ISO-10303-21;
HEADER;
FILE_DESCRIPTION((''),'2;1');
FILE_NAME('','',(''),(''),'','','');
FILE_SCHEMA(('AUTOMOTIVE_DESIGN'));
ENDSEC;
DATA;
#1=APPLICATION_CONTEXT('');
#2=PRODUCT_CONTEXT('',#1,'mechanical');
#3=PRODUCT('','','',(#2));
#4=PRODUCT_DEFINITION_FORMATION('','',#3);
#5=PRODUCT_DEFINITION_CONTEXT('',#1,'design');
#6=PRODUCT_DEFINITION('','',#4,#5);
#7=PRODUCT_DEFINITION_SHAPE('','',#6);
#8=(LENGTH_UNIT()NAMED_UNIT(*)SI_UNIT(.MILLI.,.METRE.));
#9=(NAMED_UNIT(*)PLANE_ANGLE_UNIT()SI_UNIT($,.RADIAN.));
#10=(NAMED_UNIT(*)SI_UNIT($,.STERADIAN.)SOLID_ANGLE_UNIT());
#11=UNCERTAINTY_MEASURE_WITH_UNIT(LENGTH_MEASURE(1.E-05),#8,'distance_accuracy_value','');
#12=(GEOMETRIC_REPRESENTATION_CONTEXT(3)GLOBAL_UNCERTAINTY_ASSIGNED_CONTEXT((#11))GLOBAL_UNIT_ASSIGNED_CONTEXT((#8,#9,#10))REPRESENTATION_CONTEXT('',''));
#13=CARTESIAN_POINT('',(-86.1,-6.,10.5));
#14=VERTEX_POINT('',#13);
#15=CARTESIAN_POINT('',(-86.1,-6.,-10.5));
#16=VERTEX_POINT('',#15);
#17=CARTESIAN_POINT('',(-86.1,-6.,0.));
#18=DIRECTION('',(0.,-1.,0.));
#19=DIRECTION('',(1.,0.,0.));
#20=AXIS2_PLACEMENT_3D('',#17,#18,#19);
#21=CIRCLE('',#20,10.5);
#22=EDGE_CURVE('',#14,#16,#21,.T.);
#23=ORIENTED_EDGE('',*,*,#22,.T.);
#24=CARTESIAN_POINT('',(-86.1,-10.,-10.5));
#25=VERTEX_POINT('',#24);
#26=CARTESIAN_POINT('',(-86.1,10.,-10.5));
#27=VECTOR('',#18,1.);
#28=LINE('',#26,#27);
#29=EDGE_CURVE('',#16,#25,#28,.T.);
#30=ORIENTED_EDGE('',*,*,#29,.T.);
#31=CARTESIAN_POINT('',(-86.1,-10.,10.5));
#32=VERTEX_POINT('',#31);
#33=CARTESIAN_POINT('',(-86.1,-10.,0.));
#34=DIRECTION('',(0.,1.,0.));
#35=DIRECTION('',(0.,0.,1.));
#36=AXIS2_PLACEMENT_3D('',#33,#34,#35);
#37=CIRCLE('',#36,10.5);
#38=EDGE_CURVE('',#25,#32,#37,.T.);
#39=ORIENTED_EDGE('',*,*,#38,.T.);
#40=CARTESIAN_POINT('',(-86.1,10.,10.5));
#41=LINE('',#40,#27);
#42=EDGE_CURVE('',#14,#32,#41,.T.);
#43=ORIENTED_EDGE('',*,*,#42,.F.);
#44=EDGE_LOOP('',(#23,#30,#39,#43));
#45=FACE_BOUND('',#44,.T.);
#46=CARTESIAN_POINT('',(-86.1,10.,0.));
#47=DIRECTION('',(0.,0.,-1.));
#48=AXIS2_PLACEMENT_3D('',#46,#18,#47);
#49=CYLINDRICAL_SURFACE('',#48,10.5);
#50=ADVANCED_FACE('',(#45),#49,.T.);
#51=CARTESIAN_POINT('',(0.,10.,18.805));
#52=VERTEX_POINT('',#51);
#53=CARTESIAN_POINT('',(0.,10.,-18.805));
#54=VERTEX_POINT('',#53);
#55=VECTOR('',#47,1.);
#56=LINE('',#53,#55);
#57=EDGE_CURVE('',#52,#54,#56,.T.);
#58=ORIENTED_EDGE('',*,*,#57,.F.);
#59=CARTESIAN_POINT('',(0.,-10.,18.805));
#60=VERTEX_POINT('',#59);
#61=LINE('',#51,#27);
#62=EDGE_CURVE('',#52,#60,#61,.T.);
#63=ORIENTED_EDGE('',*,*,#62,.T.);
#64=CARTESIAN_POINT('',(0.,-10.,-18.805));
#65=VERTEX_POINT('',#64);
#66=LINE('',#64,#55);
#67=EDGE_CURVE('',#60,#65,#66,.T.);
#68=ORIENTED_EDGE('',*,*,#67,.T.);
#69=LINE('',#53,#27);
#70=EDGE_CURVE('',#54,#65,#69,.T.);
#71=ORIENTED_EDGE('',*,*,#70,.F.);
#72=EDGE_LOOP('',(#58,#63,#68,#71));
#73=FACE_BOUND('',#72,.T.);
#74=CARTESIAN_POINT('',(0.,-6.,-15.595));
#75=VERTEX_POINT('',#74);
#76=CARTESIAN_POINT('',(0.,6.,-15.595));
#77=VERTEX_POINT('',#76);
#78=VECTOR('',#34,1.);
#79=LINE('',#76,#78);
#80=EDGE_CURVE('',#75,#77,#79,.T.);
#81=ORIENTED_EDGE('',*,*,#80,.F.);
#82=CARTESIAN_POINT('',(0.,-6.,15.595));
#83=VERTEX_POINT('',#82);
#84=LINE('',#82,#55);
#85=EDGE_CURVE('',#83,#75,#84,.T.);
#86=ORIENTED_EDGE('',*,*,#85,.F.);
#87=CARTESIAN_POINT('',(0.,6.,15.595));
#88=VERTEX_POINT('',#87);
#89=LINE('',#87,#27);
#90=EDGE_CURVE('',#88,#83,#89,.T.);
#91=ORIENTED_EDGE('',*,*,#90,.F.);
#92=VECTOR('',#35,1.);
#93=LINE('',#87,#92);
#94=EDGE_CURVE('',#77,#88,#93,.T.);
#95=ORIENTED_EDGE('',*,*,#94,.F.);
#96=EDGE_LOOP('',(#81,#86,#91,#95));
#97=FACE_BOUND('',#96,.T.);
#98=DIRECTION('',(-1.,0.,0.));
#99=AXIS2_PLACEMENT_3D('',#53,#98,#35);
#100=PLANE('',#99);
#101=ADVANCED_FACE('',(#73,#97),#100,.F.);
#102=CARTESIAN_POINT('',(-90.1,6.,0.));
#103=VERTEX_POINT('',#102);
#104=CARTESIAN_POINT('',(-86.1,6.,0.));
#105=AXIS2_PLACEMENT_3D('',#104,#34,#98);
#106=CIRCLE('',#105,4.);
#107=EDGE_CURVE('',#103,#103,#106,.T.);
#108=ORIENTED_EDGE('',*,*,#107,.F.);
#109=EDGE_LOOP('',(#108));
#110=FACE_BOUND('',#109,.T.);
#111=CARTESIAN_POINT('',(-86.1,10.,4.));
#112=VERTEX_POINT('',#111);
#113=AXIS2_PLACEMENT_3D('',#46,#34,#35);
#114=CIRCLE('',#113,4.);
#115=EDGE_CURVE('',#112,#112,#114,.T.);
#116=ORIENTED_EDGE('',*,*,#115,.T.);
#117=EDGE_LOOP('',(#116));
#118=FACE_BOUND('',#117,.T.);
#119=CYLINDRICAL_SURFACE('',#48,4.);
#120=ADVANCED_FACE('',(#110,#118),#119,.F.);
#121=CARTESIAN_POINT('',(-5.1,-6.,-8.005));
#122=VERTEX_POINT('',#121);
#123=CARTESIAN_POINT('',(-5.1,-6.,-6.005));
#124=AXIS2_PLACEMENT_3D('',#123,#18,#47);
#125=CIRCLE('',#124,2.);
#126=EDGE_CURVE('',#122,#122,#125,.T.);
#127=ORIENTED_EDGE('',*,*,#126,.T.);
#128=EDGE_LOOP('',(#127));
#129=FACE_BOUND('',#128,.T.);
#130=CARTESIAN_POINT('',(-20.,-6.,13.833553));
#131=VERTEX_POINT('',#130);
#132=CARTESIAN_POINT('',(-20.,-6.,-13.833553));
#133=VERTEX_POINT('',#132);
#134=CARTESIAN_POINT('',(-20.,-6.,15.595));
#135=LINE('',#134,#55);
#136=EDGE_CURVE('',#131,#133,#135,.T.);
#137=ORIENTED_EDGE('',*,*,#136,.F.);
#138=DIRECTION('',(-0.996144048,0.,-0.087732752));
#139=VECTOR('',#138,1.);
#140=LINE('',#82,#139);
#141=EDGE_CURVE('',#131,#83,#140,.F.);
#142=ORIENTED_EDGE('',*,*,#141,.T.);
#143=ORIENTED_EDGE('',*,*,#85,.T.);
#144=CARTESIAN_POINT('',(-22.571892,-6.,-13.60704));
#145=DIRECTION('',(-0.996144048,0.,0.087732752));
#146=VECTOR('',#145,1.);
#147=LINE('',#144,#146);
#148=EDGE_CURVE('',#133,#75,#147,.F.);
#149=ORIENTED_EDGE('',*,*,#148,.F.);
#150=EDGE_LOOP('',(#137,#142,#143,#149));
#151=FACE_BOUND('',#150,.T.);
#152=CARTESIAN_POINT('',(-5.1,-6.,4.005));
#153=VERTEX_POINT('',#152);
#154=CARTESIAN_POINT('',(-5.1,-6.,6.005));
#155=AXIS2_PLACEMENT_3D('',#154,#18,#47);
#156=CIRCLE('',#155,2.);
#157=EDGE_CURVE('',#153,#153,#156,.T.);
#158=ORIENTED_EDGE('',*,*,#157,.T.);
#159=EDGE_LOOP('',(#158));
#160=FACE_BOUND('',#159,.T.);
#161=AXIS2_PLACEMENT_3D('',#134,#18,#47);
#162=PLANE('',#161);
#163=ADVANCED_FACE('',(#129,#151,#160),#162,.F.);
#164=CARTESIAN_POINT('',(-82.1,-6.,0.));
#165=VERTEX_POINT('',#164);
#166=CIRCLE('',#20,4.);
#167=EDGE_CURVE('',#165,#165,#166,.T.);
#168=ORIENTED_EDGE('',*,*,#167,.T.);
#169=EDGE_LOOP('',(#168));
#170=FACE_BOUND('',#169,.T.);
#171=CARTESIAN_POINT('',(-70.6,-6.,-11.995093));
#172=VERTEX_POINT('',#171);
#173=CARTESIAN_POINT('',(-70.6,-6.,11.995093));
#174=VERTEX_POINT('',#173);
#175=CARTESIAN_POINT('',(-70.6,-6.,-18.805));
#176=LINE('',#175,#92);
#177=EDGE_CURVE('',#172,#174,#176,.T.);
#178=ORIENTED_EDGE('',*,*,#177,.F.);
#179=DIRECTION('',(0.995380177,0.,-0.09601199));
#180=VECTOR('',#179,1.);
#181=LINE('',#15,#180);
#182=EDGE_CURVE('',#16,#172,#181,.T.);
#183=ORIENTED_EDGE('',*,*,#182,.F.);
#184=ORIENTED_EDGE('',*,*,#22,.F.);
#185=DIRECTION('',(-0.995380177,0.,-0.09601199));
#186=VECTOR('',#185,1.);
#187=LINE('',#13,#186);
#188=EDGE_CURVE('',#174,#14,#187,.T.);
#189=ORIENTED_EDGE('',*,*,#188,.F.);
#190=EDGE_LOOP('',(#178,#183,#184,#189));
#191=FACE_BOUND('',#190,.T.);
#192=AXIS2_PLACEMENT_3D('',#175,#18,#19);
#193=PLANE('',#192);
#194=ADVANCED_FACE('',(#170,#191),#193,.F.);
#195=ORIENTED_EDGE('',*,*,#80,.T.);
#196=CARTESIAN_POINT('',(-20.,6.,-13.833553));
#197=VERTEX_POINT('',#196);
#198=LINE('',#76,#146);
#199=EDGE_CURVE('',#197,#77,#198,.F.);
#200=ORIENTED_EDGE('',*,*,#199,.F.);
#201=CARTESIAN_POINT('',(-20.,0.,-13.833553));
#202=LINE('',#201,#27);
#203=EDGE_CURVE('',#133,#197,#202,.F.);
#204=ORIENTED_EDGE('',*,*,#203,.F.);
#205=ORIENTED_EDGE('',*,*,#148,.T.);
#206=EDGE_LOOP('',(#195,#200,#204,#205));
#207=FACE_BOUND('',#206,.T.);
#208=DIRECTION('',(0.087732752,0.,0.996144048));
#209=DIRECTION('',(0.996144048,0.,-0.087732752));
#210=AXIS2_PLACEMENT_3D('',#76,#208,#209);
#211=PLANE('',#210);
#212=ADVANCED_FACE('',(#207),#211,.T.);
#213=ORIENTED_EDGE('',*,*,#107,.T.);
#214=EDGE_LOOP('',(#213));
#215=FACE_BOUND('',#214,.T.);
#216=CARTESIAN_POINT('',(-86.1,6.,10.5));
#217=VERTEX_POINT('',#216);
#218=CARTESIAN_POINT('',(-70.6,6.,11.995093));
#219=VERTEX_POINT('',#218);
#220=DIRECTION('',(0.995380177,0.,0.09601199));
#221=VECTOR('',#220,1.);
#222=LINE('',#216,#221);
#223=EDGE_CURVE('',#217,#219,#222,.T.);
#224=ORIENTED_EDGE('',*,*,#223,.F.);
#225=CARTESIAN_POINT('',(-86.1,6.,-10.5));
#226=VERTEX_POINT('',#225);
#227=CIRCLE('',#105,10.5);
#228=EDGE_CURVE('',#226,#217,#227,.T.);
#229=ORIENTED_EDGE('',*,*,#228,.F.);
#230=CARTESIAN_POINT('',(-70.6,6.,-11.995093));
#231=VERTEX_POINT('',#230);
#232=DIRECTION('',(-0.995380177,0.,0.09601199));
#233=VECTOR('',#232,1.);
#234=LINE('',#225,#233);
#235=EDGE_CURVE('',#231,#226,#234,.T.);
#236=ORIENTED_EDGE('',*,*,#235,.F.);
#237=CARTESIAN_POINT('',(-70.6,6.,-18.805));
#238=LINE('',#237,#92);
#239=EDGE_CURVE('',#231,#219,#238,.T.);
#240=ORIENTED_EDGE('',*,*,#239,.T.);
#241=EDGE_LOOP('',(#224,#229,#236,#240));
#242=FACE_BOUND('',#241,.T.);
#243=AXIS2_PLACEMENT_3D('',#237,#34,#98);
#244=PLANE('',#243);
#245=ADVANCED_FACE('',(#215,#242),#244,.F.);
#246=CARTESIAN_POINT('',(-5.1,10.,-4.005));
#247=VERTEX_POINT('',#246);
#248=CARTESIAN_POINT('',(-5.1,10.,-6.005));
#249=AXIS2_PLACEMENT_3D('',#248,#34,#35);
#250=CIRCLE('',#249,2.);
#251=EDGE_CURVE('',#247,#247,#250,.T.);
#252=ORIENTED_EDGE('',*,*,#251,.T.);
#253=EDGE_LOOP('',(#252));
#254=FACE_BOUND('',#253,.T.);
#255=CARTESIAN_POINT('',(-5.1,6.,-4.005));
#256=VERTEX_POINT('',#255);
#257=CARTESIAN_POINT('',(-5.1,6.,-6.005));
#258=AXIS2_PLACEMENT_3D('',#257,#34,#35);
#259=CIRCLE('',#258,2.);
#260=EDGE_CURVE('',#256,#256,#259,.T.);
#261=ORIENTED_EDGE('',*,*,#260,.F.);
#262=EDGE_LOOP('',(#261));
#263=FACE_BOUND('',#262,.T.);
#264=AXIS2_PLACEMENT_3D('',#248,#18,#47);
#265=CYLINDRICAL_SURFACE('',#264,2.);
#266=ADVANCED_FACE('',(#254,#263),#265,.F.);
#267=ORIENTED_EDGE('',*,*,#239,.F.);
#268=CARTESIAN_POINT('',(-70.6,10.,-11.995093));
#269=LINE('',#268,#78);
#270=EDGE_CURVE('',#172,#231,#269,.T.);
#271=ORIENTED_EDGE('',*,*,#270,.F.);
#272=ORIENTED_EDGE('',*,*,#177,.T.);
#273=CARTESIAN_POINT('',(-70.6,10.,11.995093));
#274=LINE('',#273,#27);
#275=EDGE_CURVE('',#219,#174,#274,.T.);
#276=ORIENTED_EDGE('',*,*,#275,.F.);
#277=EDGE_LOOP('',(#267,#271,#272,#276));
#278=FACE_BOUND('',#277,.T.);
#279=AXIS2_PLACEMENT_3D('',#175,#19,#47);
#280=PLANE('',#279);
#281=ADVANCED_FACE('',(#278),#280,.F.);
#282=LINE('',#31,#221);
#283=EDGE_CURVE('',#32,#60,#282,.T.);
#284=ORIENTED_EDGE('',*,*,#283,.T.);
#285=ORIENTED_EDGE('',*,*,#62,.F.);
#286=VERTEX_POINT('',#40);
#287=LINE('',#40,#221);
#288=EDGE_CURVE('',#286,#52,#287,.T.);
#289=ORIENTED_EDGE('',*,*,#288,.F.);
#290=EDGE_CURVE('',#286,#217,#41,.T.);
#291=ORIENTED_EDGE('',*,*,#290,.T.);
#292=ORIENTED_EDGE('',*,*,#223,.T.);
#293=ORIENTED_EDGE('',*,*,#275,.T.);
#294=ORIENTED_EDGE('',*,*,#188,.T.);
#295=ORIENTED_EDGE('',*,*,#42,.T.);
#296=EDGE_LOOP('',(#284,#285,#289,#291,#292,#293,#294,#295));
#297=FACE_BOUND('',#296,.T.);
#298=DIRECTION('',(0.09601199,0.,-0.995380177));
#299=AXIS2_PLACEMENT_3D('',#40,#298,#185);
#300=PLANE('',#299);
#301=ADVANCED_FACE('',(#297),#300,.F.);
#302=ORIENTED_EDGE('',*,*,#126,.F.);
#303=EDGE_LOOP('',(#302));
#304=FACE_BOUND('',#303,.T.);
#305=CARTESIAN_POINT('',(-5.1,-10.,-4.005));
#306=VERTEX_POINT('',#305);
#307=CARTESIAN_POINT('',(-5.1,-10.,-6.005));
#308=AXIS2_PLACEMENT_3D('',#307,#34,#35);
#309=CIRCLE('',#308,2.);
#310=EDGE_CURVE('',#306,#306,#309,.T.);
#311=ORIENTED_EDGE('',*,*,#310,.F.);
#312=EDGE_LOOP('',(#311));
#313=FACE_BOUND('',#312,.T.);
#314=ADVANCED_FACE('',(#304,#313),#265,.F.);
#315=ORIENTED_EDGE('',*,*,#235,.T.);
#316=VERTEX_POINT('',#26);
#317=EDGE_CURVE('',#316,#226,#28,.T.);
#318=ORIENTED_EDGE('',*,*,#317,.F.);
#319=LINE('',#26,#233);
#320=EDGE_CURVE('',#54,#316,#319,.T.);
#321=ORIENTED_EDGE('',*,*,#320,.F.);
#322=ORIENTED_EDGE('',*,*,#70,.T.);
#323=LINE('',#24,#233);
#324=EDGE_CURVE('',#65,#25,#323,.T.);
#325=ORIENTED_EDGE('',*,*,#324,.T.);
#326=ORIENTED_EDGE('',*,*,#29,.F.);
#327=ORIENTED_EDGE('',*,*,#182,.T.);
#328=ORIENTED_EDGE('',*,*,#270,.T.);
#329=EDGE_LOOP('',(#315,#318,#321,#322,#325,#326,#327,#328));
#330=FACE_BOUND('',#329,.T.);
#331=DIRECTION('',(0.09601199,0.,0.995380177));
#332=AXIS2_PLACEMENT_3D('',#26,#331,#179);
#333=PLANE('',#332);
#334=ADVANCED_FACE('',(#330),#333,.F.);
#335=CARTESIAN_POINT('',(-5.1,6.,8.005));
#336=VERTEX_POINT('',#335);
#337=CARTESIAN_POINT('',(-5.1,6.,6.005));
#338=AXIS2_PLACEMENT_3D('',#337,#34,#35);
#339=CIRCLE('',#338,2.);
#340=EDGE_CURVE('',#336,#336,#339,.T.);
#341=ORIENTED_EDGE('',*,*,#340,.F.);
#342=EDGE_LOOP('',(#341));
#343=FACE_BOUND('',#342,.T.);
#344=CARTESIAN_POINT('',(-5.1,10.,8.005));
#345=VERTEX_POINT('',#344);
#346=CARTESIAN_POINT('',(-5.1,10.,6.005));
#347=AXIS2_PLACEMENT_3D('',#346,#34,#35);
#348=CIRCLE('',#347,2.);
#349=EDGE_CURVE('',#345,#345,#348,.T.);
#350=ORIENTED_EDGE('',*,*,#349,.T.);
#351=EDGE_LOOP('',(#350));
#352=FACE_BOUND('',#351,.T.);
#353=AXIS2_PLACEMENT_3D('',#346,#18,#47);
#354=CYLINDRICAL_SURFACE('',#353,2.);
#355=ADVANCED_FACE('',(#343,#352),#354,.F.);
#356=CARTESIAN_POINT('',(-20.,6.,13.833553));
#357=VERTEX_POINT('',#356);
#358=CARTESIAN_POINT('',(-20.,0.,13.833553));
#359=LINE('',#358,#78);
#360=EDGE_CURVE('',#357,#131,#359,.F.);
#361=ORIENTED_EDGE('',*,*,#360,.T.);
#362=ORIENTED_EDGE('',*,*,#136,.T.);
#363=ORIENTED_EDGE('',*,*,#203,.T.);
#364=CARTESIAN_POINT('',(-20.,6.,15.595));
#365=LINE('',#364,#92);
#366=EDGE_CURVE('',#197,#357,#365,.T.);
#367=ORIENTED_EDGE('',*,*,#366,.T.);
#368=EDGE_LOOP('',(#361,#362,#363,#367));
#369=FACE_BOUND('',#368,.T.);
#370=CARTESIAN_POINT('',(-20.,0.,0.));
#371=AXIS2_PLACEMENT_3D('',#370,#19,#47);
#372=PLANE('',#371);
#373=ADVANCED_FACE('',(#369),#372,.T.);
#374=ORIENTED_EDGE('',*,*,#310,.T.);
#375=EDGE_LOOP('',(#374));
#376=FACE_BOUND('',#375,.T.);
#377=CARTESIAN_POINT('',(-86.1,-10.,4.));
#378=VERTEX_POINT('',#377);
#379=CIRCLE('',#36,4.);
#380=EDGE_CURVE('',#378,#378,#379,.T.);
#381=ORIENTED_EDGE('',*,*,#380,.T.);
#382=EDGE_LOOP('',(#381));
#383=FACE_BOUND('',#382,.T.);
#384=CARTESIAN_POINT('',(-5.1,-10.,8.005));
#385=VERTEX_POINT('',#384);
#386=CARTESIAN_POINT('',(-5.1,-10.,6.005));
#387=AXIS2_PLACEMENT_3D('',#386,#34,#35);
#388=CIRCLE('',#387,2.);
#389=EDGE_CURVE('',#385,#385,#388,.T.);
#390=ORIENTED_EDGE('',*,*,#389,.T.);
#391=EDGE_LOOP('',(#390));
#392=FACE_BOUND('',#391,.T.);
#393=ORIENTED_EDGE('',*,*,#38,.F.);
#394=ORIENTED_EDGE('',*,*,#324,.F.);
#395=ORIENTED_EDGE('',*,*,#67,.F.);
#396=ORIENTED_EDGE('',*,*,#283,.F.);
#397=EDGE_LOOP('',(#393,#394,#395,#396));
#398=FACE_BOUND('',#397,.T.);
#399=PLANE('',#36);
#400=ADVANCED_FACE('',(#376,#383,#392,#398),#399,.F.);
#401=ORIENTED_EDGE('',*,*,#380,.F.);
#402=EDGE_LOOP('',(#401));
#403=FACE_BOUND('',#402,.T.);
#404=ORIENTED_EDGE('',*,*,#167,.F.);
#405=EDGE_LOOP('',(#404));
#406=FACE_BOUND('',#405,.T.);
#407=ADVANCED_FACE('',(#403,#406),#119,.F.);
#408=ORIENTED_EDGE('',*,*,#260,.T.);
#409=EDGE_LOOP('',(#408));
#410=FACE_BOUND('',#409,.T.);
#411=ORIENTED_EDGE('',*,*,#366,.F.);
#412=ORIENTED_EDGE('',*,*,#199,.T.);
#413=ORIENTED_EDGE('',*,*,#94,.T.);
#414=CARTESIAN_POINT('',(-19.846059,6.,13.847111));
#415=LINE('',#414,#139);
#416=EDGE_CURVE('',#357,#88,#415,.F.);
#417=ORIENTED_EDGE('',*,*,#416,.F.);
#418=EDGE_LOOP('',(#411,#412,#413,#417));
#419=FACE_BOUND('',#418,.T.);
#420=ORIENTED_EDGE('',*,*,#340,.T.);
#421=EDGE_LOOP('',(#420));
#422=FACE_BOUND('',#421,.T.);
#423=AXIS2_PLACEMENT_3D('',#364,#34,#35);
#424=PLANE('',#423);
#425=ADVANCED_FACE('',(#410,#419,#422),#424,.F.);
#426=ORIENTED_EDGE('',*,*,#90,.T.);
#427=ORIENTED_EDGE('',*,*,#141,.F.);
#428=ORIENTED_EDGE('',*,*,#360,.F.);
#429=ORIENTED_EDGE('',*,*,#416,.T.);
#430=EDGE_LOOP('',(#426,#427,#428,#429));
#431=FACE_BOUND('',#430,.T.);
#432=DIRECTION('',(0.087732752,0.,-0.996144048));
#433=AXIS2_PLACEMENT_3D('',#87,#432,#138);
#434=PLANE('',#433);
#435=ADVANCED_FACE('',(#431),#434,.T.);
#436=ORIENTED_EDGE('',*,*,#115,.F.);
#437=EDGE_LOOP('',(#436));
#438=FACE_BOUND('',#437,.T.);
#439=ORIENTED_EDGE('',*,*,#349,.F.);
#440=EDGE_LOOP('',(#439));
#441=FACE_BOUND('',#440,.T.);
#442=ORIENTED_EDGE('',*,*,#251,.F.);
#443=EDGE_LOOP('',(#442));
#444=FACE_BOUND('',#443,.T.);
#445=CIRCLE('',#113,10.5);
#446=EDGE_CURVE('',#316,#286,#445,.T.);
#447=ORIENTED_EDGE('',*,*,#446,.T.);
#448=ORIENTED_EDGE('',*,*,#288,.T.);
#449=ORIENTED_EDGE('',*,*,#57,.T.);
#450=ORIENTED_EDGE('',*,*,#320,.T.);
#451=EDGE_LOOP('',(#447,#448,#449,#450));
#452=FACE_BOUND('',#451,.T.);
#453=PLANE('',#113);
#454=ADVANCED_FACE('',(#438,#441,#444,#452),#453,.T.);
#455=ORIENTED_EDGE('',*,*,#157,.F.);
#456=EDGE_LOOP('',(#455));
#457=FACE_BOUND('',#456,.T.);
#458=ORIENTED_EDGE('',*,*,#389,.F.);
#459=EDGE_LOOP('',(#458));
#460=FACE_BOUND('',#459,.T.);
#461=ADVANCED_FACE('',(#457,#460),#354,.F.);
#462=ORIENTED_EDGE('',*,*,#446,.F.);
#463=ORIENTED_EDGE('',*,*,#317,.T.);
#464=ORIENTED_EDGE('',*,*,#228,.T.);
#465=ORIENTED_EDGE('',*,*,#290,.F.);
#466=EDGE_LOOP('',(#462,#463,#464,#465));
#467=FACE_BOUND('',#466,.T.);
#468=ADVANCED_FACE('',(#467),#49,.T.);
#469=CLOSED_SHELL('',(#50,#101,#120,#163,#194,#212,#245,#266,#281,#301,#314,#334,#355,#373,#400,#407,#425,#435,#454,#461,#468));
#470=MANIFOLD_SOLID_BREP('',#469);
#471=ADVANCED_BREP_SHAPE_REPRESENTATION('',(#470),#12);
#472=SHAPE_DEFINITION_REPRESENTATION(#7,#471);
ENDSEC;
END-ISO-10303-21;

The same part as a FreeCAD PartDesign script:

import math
import FreeCAD as App
import Part
import Sketcher

V = App.Vector
Q = App.Units.Quantity


def faces_at(feature, points):
    """Names of the faces that lie closest to the given points."""
    faces = feature.Shape.Faces
    near = lambda p: min(range(len(faces)), key=lambda i: faces[i].distToShape(Part.Vertex(*p))[0])
    return sorted({f"Face{near(p) + 1}" for p in points})


def add_polygon(sketch, points):
    """Adds a closed chain of lines whose ends are joined by coincident constraints."""
    first, n = sketch.GeometryCount, len(points)
    for a, b in zip(points, points[1:] + points[:1]):
        sketch.addGeometry(Part.LineSegment(App.Vector(*a, 0), App.Vector(*b, 0)), False)
    for i in range(n):
        sketch.addConstraint(Sketcher.Constraint("Coincident", first + i, 2, first + (i + 1) % n, 1))

doc = App.newDocument("Part")
body = doc.addObject("PartDesign::Body", "Body")

sketch1 = body.newObject("Sketcher::SketchObject", "Sketch")
sketch1.AttachmentSupport = (doc.getObject("XZ_Plane"), [""])
sketch1.MapMode = "FlatFace"
sketch1.addGeometry([
    Part.LineSegment(V(0, 18.8, 0), V(0, -18.8, 0)),
    Part.LineSegment(V(0, -18.8, 0), V(-86.1, -10.5, 0)),
    Part.ArcOfCircle(Part.Circle(V(-86.1, 0, 0), V(0, 0, 1), 10.5), math.radians(90), math.radians(270)),
    Part.LineSegment(V(-86.1, 10.5, 0), V(0, 18.8, 0)),
    Part.Circle(V(-5.1, 6, 0), V(0, 0, 1), 2),
    Part.Circle(V(-5.1, -6, 0), V(0, 0, 1), 2),
    Part.Circle(V(-86.1, 0, 0), V(0, 0, 1), 4),
], False)
sketch1.addConstraint([
    Sketcher.Constraint("Coincident", 0, 2, 1, 1),
    Sketcher.Constraint("Coincident", 1, 2, 2, 2),
    Sketcher.Constraint("Coincident", 2, 1, 3, 1),
    Sketcher.Constraint("Coincident", 3, 2, 0, 1),
    Sketcher.Constraint("Vertical", 0),
    Sketcher.Constraint("Coincident", 6, 3, 2, 3),
    Sketcher.Constraint("Equal", 4, 5),
    Sketcher.Constraint("Symmetric", 0, 2, 3, 2, -1, 1),
    Sketcher.Constraint("Symmetric", 4, 3, 5, 3, -1),
    Sketcher.Constraint("Symmetric", 1, 2, 2, 1, -1),
    Sketcher.Constraint("Vertical", 6, 3, 1, 2),
    Sketcher.Constraint("Diameter", 4, Q("4 mm")),
    Sketcher.Constraint("Diameter", 6, Q("8 mm")),
    Sketcher.Constraint("Radius", 2, Q("10.5 mm")),
    Sketcher.Constraint("DistanceX", 2, 3, 4, 3, Q("81 mm")),
    Sketcher.Constraint("DistanceY", 0, 2, 0, 1, Q("37.61 mm")),
    Sketcher.Constraint("DistanceX", 2, 3, -1, 1, Q("86.1 mm")),
    Sketcher.Constraint("DistanceY", 0, 2, 5, 3, Q("12.8 mm")),
])
pad1 = body.newObject("PartDesign::Pad", "Pad")
pad1.Profile = sketch1
pad1.Length = 20
pad1.Midplane = True

sketch2 = body.newObject("Sketcher::SketchObject", "Sketch001")
sketch2.AttachmentSupport = (doc.getObject("YZ_Plane"), [""])
sketch2.MapMode = "FlatFace"
add_polygon(sketch2, [(6, 16), (-6, 16), (-6, -16), (6, -16)])
sketch2.addConstraint([
    Sketcher.Constraint("Horizontal", 0),
    Sketcher.Constraint("Vertical", 1),
    Sketcher.Constraint("Horizontal", 2),
    Sketcher.Constraint("Vertical", 3),
    Sketcher.Constraint("Symmetric", 0, 2, 2, 2, -1, 1),
    Sketcher.Constraint("DistanceX", 0, 2, 0, 1, Q("12 mm")),
    Sketcher.Constraint("DistanceY", 1, 2, 1, 1, Q("31.19 mm")),
])
pocket1 = body.newObject("PartDesign::Pocket", "Pocket")
pocket1.Profile = sketch2
pocket1.Length = 20
doc.recompute()

draft = body.newObject("PartDesign::Draft", "Draft")
draft.Base = (pocket1, faces_at(pocket1, [(-10, 0, 15.595), (-10, 0, -15.595)]))
draft.NeutralPlane = (doc.getObject("YZ_Plane"), [""])
draft.Angle = 5.033187
draft.Reversed = False

sketch3 = body.newObject("Sketcher::SketchObject", "Sketch002")
sketch3.AttachmentSupport = (doc.getObject("XY_Plane"), [""])
sketch3.MapMode = "FlatFace"
add_polygon(sketch3, [(-97, 6), (-97, -6), (-71, -6), (-71, 6)])
sketch3.addConstraint([
    Sketcher.Constraint("Vertical", 0),
    Sketcher.Constraint("Horizontal", 1),
    Sketcher.Constraint("Vertical", 2),
    Sketcher.Constraint("Horizontal", 3),
    Sketcher.Constraint("DistanceX", 1, 1, 1, 2, Q("26 mm")),
    Sketcher.Constraint("DistanceY", 0, 2, 0, 1, Q("12 mm")),
    Sketcher.Constraint("DistanceY", 0, 2, -1, 1, Q("6 mm")),
    Sketcher.Constraint("DistanceX", 0, 2, -1, 1, Q("96.6 mm")),
])
pocket2 = body.newObject("PartDesign::Pocket", "Pocket001")
pocket2.Profile = sketch3
pocket2.Type = "ThroughAll"
pocket2.Midplane = True

doc.recompute()
